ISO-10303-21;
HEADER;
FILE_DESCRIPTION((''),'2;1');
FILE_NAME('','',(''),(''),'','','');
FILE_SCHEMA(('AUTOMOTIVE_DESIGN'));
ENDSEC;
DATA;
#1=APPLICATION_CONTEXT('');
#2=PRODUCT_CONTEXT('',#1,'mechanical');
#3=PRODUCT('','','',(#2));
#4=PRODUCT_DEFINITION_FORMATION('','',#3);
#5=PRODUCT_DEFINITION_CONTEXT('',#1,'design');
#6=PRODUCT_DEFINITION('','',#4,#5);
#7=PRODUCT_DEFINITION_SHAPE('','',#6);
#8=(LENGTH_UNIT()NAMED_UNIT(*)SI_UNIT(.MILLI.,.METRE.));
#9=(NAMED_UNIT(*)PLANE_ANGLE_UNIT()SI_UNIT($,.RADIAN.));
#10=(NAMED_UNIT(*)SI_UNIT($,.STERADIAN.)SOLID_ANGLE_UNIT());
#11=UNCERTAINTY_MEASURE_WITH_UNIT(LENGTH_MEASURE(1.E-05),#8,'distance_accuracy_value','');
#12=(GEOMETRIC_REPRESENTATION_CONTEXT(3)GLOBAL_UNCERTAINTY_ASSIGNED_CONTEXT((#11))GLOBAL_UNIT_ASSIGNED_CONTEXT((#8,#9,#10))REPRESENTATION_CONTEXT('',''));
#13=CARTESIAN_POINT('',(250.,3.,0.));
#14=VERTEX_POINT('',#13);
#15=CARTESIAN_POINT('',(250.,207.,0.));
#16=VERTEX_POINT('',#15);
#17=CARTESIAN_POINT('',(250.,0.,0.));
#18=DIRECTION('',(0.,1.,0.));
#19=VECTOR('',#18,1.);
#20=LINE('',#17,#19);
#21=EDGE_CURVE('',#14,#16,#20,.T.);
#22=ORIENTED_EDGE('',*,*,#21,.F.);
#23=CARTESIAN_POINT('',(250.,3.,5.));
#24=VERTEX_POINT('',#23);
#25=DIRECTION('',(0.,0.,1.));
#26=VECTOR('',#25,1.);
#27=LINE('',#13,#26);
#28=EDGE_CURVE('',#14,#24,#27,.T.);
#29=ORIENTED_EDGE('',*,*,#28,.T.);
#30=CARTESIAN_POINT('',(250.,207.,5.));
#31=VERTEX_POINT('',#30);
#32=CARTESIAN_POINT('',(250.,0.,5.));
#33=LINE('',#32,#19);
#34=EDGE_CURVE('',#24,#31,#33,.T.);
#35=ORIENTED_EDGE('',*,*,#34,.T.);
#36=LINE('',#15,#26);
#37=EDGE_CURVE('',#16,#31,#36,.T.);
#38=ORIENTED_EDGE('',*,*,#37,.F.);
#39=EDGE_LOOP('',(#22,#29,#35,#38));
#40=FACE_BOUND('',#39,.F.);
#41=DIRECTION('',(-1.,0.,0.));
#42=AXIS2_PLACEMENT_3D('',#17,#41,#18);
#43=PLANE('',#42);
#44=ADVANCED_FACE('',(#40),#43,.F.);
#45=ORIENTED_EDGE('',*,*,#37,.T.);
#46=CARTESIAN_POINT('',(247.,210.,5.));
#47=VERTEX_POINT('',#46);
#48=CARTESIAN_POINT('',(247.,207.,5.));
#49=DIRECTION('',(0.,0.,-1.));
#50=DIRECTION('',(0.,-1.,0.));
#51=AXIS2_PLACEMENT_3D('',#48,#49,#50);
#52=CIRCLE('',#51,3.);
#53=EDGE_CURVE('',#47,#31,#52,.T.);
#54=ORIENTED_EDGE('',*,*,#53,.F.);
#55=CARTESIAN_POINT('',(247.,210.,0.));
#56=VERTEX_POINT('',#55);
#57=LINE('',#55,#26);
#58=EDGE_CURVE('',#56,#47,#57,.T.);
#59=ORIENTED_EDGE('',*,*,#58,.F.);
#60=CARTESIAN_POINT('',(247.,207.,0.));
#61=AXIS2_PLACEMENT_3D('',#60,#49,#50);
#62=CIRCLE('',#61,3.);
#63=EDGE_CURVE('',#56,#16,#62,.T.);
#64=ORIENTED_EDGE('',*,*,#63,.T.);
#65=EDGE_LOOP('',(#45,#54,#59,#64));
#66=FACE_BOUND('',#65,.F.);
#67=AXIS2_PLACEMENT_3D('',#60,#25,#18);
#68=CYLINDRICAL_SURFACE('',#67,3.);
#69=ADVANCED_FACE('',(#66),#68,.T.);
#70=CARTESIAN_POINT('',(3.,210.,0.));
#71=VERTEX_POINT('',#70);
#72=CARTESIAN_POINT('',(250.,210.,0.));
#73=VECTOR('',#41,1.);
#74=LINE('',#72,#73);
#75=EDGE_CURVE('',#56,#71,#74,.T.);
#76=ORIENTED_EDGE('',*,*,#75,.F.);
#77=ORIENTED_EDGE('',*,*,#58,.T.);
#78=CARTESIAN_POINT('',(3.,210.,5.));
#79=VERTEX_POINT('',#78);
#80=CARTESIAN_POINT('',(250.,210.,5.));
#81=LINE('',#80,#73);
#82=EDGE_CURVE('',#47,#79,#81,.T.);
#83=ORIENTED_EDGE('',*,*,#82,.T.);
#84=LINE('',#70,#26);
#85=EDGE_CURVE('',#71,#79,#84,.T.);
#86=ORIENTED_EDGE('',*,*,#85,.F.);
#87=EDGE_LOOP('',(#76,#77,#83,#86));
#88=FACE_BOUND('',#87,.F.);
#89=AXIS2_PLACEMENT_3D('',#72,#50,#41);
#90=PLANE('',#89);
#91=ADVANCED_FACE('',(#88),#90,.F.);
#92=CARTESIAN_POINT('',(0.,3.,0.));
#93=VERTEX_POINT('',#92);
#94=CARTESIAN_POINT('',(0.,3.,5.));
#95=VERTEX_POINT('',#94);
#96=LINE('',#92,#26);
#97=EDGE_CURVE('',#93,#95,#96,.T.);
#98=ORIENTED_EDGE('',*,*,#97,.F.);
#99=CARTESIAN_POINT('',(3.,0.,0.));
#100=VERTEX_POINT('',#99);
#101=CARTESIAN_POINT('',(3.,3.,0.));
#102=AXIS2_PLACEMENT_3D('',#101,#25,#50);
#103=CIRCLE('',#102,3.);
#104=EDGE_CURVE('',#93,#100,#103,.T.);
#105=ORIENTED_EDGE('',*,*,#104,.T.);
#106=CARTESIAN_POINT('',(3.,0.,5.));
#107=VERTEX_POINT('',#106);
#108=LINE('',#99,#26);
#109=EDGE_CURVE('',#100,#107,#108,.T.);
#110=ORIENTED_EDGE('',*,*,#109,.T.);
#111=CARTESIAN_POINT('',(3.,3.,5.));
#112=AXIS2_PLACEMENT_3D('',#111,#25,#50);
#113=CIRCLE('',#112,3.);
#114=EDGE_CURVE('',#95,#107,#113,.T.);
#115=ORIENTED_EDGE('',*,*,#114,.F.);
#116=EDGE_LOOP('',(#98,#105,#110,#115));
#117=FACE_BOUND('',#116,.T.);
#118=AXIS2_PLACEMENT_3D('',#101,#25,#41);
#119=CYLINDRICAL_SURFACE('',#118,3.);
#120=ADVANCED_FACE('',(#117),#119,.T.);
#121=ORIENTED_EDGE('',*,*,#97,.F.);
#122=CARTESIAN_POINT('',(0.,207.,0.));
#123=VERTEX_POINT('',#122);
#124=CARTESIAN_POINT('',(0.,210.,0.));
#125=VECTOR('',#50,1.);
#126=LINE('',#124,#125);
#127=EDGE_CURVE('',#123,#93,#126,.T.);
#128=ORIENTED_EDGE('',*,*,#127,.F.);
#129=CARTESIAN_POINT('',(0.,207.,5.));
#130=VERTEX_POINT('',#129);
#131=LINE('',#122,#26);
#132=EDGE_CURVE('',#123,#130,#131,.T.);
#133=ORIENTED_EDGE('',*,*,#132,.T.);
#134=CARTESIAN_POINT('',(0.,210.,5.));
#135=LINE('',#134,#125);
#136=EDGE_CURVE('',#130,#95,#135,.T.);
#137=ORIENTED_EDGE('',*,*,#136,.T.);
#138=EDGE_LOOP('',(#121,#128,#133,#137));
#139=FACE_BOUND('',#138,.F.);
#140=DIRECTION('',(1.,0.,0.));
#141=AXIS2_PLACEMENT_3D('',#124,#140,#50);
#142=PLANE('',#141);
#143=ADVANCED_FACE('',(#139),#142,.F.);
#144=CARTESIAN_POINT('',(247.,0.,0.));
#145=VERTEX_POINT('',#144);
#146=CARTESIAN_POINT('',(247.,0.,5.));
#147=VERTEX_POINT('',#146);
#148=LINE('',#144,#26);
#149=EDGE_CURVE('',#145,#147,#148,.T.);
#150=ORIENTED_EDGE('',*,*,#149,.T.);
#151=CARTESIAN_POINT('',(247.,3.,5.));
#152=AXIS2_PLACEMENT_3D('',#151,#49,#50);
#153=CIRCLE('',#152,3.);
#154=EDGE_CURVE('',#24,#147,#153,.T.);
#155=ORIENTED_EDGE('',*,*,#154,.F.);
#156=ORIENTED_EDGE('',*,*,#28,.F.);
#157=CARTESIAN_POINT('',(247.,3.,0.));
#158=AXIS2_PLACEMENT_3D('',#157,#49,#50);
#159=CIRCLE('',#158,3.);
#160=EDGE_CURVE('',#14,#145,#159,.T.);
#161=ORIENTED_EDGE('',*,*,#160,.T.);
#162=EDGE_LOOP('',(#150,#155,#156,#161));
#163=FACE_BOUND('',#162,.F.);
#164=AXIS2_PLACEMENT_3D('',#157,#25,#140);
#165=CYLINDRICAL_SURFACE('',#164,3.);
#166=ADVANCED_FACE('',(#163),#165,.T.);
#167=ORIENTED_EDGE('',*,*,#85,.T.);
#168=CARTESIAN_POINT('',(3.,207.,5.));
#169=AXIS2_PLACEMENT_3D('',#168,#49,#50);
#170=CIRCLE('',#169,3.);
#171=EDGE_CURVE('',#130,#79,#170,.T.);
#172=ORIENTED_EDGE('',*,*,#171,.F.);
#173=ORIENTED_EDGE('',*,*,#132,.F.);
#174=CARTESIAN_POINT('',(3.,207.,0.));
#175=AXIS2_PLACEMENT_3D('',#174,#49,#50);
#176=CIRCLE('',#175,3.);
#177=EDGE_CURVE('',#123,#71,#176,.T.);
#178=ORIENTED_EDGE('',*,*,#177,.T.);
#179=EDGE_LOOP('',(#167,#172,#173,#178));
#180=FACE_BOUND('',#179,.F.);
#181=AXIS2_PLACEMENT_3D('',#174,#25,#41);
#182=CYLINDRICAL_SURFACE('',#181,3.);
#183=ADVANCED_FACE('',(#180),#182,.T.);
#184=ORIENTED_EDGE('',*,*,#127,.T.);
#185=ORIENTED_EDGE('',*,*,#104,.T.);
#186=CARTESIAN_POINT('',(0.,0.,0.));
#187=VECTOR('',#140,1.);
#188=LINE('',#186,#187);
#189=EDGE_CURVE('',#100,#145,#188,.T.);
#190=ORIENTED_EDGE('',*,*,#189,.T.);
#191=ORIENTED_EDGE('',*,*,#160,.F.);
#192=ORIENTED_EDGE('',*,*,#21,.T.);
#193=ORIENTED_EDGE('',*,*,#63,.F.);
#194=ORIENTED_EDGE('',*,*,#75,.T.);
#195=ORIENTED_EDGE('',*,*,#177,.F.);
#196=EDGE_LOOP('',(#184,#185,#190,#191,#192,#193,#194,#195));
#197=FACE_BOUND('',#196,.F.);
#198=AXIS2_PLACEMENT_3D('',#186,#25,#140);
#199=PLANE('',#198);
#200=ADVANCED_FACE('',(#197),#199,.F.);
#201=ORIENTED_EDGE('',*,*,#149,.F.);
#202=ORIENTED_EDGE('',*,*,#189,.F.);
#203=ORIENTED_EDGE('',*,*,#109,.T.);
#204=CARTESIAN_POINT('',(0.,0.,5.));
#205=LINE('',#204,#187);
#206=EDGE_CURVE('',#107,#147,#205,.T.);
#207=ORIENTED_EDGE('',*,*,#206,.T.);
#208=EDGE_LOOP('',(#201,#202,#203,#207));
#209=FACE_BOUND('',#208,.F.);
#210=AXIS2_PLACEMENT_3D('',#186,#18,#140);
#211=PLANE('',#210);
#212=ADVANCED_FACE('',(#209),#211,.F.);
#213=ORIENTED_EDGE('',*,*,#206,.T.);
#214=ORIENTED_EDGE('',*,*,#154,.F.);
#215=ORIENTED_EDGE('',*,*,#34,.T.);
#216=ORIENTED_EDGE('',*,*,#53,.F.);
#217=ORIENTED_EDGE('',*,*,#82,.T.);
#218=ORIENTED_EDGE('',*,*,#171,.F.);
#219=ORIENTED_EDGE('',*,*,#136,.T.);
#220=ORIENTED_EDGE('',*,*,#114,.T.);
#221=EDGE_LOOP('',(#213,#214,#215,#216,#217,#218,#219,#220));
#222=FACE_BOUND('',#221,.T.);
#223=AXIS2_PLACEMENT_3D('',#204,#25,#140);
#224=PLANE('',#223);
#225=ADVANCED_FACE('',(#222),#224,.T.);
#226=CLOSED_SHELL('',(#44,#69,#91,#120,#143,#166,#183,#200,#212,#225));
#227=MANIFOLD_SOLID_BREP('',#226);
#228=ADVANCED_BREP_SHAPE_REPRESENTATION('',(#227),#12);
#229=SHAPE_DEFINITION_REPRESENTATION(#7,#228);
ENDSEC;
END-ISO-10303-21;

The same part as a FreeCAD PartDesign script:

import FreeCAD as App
import Part
import Sketcher
Q = App.Units.Quantity


def edges_at(feature, points):
    """Names of the edges that pass closest to the given points."""
    edges = feature.Shape.Edges
    near = lambda p: min(range(len(edges)), key=lambda i: edges[i].distToShape(Part.Vertex(*p))[0])
    return sorted({f"Edge{near(p) + 1}" for p in points})

doc = App.newDocument("Part")
body = doc.addObject("PartDesign::Body", "Body")

sketch1 = body.newObject("Sketcher::SketchObject", "Sketch")
sketch1.AttachmentSupport = (doc.getObject("XY_Plane"), [""])
sketch1.MapMode = "FlatFace"
sketch1.addGeometry(Part.LineSegment(App.Vector(0, 210, 0), App.Vector(0, 0, 0)), False)
sketch1.addGeometry(Part.LineSegment(App.Vector(0, 0, 0), App.Vector(250, 0, 0)), False)
sketch1.addGeometry(Part.LineSegment(App.Vector(250, 0, 0), App.Vector(250, 210, 0)), False)
sketch1.addGeometry(Part.LineSegment(App.Vector(250, 210, 0), App.Vector(0, 210, 0)), False)
sketch1.addConstraint(Sketcher.Constraint("Coincident", 0, 2, 1, 1))
sketch1.addConstraint(Sketcher.Constraint("Coincident", 1, 2, 2, 1))
sketch1.addConstraint(Sketcher.Constraint("Coincident", 2, 2, 3, 1))
sketch1.addConstraint(Sketcher.Constraint("Coincident", 3, 2, 0, 1))
sketch1.addConstraint(Sketcher.Constraint("Vertical", 0))
sketch1.addConstraint(Sketcher.Constraint("Horizontal", 1))
sketch1.addConstraint(Sketcher.Constraint("Vertical", 2))
sketch1.addConstraint(Sketcher.Constraint("Horizontal", 3))
sketch1.addConstraint(Sketcher.Constraint("Coincident", 0, 2, -1, 1))
sketch1.addConstraint(Sketcher.Constraint("DistanceX", 1, 1, 1, 2, Q("250 mm")))
sketch1.addConstraint(Sketcher.Constraint("DistanceY", 0, 2, 0, 1, Q("210 mm")))
pad1 = body.newObject("PartDesign::Pad", "Pad")
pad1.Profile = sketch1
pad1.Length = 5
doc.recompute()

fillet = body.newObject("PartDesign::Fillet", "Fillet")
fillet.Base = (pad1, edges_at(pad1, [
    (0, 0, 2.5),
    (0, 210, 2.5),
    (250, 210, 2.5),
    (250, 0, 2.5),
]))
fillet.Radius = 3

doc.recompute()
